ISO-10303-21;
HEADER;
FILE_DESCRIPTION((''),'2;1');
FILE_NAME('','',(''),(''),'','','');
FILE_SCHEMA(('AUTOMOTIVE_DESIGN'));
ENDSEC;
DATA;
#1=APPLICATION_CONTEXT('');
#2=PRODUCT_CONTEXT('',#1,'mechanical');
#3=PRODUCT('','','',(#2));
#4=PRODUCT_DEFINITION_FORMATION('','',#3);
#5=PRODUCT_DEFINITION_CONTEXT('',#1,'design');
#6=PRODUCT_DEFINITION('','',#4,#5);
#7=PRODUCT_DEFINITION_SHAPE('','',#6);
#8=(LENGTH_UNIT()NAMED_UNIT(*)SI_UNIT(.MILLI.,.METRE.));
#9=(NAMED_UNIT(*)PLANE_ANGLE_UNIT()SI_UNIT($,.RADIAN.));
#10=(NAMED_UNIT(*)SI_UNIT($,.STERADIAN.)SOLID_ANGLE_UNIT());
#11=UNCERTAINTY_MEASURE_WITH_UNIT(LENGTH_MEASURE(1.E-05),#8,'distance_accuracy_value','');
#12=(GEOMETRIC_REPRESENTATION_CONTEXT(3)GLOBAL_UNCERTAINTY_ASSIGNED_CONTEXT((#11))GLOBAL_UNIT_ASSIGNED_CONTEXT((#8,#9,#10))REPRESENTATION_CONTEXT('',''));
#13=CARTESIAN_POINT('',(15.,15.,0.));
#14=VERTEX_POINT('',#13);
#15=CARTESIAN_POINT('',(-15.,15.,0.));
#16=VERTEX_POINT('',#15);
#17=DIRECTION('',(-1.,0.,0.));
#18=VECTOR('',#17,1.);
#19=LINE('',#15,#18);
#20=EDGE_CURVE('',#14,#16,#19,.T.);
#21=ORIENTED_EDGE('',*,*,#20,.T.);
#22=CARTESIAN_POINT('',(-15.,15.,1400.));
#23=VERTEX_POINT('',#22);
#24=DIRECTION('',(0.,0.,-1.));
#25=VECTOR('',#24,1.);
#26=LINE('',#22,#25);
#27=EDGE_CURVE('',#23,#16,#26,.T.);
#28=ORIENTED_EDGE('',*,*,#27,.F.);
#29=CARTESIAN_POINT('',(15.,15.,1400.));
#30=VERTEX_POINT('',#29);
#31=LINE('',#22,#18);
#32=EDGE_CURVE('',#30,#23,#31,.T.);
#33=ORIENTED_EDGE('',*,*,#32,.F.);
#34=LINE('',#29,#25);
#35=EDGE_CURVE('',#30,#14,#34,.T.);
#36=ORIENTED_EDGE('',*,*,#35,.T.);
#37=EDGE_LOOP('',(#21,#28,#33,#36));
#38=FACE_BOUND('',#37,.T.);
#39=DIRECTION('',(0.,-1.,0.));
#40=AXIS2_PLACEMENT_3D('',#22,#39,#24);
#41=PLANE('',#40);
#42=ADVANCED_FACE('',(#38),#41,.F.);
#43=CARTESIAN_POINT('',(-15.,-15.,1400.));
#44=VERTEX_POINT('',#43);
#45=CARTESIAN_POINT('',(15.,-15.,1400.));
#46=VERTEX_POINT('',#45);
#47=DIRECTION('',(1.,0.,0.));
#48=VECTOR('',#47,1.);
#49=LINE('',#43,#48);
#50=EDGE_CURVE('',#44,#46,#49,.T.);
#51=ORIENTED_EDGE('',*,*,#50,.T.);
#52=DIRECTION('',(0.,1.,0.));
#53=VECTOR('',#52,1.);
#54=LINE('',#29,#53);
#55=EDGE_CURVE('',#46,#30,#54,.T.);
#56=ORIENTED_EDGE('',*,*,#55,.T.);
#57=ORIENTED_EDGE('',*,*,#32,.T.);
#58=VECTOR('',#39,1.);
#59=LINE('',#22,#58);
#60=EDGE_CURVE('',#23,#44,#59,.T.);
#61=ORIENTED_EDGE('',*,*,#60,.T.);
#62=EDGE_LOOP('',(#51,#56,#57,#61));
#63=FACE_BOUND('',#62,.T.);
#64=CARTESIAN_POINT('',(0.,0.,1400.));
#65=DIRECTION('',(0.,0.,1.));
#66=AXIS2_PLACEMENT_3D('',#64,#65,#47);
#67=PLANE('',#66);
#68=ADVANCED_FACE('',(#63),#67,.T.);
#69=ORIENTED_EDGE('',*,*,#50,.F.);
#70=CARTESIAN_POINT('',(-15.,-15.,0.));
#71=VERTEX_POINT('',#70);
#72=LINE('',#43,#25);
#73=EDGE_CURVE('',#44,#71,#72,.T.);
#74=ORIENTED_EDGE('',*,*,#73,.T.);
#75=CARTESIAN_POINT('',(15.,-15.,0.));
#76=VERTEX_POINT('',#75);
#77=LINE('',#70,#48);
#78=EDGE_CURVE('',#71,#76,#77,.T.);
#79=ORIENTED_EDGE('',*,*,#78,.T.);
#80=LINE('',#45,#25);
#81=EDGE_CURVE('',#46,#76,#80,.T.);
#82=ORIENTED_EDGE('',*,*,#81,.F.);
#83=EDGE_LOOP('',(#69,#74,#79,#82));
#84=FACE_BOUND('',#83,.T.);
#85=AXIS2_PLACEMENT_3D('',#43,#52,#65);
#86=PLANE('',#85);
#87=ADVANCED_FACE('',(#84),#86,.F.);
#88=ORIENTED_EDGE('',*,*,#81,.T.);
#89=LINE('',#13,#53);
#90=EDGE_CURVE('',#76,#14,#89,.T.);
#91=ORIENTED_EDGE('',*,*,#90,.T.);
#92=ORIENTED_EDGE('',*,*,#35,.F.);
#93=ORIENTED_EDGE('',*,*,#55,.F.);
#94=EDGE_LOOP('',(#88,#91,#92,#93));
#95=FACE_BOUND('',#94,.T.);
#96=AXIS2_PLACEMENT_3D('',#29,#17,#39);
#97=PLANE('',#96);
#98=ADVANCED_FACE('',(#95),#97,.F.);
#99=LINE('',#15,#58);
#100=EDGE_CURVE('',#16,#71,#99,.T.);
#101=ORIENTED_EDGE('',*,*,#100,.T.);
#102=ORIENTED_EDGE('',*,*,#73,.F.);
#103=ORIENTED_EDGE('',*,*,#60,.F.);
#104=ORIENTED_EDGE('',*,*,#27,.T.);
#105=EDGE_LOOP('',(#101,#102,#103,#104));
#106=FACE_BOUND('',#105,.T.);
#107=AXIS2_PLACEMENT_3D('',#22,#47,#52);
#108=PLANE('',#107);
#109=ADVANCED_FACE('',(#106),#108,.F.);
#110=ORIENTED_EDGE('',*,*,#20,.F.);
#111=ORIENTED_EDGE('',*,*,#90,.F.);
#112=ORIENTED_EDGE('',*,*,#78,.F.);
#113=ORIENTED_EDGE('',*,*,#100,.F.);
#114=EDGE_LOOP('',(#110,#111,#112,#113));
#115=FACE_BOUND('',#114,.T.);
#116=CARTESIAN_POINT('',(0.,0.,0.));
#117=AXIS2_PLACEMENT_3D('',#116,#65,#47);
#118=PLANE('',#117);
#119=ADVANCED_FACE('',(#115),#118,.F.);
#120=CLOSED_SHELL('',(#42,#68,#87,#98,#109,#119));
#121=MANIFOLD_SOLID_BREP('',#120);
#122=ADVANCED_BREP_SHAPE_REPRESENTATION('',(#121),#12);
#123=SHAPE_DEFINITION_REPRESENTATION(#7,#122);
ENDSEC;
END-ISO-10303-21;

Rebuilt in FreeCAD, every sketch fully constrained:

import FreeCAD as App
import Part
import Sketcher

doc = App.newDocument("Part")
body = doc.addObject("PartDesign::Body", "Body")

# Sketch on XY plane
sketch1 = body.newObject("Sketcher::SketchObject", "Sketch")
sketch1.AttachmentSupport = (doc.getObject("XY_Plane"), [""])
sketch1.MapMode = "FlatFace"
sketch1.addGeometry([
    Part.LineSegment(App.Vector(-15, 15, 0), App.Vector(-15, -15, 0)),
    Part.LineSegment(App.Vector(-15, -15, 0), App.Vector(15, -15, 0)),
    Part.LineSegment(App.Vector(15, -15, 0), App.Vector(15, 15, 0)),
    Part.LineSegment(App.Vector(15, 15, 0), App.Vector(-15, 15, 0)),
], False)
sketch1.addConstraint([
    Sketcher.Constraint("Coincident", 0, 2, 1, 1),
    Sketcher.Constraint("Coincident", 1, 2, 2, 1),
    Sketcher.Constraint("Coincident", 2, 2, 3, 1),
    Sketcher.Constraint("Coincident", 3, 2, 0, 1),
    Sketcher.Constraint("Vertical", 0),
    Sketcher.Constraint("Horizontal", 1),
    Sketcher.Constraint("Vertical", 2),
    Sketcher.Constraint("Horizontal", 3),
    Sketcher.Constraint("Symmetric", 0, 2, 2, 2, -1, 1),
    Sketcher.Constraint("Equal", 3, 0),
    Sketcher.Constraint("DistanceX", 1, 1, 1, 2, 30.0),
])
pad1 = body.newObject("PartDesign::Pad", "Pad")
pad1.Profile = sketch1
pad1.Length = 1400

doc.recompute()
